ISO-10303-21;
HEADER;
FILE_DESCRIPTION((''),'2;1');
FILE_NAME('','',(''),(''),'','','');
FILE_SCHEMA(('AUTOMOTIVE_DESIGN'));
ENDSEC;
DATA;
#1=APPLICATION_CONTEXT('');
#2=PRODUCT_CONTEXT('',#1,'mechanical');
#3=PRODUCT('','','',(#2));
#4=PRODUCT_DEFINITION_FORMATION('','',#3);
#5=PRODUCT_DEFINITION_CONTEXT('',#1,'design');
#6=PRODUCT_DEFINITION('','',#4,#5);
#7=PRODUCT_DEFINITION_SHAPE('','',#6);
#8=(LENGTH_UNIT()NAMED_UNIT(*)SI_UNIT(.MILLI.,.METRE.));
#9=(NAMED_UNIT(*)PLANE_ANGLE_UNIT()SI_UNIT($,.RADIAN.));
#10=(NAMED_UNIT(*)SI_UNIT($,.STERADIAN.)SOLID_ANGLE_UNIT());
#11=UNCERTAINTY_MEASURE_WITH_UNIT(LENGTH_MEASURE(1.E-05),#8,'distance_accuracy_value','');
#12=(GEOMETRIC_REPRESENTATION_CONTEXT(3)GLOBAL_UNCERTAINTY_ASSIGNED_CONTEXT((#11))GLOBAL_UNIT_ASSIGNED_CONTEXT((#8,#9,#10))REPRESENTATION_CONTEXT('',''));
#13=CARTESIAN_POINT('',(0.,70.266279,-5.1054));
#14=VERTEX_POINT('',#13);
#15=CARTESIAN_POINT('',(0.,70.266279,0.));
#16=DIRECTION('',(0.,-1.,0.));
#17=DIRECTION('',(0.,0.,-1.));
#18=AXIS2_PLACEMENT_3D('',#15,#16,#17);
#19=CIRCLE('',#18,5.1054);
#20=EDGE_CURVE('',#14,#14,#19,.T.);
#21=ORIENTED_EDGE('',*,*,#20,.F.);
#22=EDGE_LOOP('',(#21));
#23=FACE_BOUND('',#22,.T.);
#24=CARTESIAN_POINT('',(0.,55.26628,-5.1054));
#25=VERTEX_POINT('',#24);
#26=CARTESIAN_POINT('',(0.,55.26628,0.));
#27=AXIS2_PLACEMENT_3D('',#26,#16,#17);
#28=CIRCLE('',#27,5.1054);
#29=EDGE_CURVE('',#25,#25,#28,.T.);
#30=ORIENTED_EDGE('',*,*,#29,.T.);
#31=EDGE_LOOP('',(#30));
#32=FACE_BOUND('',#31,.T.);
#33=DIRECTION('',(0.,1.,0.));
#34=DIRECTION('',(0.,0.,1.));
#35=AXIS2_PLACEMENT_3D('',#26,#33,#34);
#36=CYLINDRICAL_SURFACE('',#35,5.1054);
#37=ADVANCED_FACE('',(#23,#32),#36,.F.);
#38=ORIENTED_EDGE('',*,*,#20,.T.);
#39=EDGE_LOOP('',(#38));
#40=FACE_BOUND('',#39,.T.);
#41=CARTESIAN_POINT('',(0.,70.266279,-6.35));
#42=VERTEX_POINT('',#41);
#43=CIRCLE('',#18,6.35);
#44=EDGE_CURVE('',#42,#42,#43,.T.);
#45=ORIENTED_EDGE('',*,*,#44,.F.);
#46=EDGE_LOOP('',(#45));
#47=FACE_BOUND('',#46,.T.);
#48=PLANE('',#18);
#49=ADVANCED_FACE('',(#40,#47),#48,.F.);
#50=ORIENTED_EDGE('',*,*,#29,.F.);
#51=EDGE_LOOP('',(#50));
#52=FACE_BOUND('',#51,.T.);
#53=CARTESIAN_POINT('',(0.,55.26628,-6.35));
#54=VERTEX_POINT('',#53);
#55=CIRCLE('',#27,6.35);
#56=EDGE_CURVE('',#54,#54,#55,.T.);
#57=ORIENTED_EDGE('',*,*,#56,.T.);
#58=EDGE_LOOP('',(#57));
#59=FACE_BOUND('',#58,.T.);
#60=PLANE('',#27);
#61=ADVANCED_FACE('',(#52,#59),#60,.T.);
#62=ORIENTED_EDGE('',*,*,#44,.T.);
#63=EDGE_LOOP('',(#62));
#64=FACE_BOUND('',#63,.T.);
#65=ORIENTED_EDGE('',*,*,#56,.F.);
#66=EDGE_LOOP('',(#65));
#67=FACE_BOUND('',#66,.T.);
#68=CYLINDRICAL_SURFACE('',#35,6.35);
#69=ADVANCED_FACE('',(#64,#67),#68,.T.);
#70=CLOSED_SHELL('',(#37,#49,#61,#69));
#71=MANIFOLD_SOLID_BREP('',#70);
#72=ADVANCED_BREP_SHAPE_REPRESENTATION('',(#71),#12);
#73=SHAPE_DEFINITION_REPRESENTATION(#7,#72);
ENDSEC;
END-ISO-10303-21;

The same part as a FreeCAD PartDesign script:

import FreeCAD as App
import Part
import Sketcher
Q = App.Units.Quantity

doc = App.newDocument("Part")
body = doc.addObject("PartDesign::Body", "Body")

# Sketch on XZ plane
sketch1 = body.newObject("Sketcher::SketchObject", "Sketch")
sketch1.AttachmentSupport = (doc.getObject("XZ_Plane"), [""])
sketch1.MapMode = "FlatFace"
sketch1.AttachmentOffset = App.Placement(App.Vector(0, 0, -70.266279), App.Rotation())
sketch1.addGeometry(Part.Circle(App.Vector(0, 0, 0), App.Vector(0, 0, 1), 6.35), False)
sketch1.addGeometry(Part.Circle(App.Vector(0, 0, 0), App.Vector(0, 0, 1), 5.1054), False)
sketch1.addConstraint(Sketcher.Constraint("Coincident", 0, 3, -1, 1))
sketch1.addConstraint(Sketcher.Constraint("Coincident", 1, 3, -1, 1))
sketch1.addConstraint(Sketcher.Constraint("Diameter", 0, Q("0.5 in")))
sketch1.addConstraint(Sketcher.Constraint("Diameter", 1, Q("0.402 in")))
pad1 = body.newObject("PartDesign::Pad", "Pad")
pad1.Profile = sketch1
pad1.Length = 15

doc.recompute()
